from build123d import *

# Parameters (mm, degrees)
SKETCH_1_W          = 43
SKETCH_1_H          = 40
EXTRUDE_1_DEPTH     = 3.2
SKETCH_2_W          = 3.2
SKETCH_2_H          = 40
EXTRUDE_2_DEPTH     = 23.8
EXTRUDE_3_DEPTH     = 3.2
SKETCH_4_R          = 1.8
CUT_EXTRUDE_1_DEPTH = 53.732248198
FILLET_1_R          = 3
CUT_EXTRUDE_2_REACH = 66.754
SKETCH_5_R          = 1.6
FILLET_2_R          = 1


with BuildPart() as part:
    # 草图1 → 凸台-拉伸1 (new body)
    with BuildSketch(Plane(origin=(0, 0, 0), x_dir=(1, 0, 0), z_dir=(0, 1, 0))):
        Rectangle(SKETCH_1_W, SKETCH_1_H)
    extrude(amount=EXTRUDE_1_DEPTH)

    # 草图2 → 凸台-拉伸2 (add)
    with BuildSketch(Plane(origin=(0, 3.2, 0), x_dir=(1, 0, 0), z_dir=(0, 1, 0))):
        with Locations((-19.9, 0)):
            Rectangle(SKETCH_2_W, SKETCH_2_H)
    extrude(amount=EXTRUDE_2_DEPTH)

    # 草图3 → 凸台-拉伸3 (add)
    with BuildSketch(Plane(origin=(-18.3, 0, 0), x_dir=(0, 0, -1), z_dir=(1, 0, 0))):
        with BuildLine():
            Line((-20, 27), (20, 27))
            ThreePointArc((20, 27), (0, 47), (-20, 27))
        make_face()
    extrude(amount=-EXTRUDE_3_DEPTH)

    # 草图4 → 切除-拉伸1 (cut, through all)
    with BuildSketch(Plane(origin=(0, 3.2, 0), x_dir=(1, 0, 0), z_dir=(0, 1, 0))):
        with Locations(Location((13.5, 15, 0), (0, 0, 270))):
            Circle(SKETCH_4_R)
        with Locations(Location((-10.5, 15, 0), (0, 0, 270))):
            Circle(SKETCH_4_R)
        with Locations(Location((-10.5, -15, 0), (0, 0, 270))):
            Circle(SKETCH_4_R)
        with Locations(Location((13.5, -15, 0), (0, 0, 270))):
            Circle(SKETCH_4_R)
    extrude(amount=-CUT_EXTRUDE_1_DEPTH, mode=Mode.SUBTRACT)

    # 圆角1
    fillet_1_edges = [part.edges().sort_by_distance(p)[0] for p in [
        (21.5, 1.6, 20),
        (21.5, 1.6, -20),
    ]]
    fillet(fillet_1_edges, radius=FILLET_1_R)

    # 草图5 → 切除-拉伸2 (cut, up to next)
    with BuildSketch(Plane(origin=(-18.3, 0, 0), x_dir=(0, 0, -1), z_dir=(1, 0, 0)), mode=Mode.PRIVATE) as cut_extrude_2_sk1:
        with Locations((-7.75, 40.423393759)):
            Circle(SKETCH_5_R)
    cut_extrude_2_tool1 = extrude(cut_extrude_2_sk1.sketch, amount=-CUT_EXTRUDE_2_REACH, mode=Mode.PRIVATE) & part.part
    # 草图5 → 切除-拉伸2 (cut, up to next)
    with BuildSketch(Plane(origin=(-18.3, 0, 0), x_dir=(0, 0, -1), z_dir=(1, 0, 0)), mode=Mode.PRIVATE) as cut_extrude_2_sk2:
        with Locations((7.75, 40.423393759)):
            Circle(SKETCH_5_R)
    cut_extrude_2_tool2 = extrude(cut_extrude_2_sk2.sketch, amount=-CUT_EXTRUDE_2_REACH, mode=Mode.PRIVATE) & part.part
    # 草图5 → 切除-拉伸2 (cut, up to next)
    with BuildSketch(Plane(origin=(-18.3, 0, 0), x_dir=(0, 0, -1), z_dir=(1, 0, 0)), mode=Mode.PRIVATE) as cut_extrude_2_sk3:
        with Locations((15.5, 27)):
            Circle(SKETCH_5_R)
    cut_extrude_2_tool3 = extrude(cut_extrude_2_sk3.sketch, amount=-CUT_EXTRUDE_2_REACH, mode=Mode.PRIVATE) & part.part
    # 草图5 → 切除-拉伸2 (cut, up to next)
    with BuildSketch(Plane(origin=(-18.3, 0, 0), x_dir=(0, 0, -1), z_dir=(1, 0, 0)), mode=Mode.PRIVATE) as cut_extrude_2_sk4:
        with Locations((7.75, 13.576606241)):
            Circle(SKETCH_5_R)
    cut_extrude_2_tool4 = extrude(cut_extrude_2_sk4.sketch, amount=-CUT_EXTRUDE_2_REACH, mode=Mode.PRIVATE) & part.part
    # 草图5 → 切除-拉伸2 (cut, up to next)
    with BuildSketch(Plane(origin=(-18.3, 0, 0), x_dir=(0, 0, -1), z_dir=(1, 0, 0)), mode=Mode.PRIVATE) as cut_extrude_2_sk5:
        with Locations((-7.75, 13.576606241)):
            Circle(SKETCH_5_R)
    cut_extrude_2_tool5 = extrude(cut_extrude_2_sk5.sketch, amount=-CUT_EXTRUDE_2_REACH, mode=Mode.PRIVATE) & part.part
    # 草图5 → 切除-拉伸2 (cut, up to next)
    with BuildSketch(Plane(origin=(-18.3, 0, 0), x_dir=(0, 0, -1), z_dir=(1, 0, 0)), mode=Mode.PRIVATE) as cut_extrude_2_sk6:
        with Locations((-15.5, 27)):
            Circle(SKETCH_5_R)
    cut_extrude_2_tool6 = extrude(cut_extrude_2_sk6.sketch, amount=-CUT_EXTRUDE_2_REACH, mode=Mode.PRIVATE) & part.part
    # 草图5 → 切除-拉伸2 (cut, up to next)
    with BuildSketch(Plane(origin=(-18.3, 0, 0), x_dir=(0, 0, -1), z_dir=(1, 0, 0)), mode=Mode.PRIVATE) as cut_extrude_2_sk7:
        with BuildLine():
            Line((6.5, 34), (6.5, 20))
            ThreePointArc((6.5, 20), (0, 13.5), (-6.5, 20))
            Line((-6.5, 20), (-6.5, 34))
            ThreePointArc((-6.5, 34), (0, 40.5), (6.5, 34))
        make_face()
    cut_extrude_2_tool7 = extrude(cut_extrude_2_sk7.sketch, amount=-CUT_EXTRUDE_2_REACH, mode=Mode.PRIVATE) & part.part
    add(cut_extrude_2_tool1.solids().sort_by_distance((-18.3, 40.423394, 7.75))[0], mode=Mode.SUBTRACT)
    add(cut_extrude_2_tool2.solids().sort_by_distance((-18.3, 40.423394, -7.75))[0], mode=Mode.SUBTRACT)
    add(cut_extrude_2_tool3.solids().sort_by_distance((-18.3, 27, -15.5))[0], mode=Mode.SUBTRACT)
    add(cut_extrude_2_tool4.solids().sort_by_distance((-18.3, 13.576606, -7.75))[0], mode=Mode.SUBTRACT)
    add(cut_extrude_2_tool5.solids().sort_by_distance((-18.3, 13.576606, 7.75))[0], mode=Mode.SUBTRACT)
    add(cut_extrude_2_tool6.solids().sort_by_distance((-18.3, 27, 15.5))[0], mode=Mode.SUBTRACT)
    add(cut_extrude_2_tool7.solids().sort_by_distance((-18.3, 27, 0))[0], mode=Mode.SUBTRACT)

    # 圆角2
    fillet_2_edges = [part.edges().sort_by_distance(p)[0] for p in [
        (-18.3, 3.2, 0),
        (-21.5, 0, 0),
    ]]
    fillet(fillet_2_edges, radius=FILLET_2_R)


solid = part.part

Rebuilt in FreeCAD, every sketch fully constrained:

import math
import FreeCAD as App
import Part
import Sketcher
from FreeCAD import Vector
Q = App.Units.Quantity


def edges_at(feature, points):
    """Names of the edges that pass closest to the given points."""
    edges = feature.Shape.Edges
    near = lambda p: min(range(len(edges)), key=lambda i: edges[i].distToShape(Part.Vertex(*p))[0])
    return sorted({f"Edge{near(p) + 1}" for p in points})


def add_polygon(sketch, points):
    """Adds a closed chain of lines whose ends are joined by coincident constraints."""
    first, n = sketch.GeometryCount, len(points)
    for a, b in zip(points, points[1:] + points[:1]):
        sketch.addGeometry(Part.LineSegment(App.Vector(*a, 0), App.Vector(*b, 0)), False)
    for i in range(n):
        sketch.addConstraint(Sketcher.Constraint("Coincident", first + i, 2, first + (i + 1) % n, 1))

doc = App.newDocument("Part")
body = doc.addObject("PartDesign::Body", "Body")

# Sketch on XZ plane
sketch1 = body.newObject("Sketcher::SketchObject", "Sketch")
sketch1.AttachmentSupport = (doc.getObject("XZ_Plane"), [""])
sketch1.MapMode = "FlatFace"
add_polygon(sketch1, [(-21.5, -20), (-21.5, 20), (21.5, 20), (21.5, -20)])  # lines 0-3
sketch1.addConstraint(Sketcher.Constraint("Vertical", 0))
sketch1.addConstraint(Sketcher.Constraint("Horizontal", 1))
sketch1.addConstraint(Sketcher.Constraint("Vertical", 2))
sketch1.addConstraint(Sketcher.Constraint("Horizontal", 3))
sketch1.addConstraint(Sketcher.Constraint("Symmetric", 0, 2, 2, 2, -1, 1))
sketch1.addConstraint(Sketcher.Constraint("DistanceX", 1, 1, 1, 2, Q("43 mm")))
sketch1.addConstraint(Sketcher.Constraint("DistanceY", 0, 1, 0, 2, Q("40 mm")))
pad1 = body.newObject("PartDesign::Pad", "Pad")
pad1.Profile = sketch1
pad1.Length = 3.2
pad1.Reversed = True

# Sketch on XZ plane
sketch2 = body.newObject("Sketcher::SketchObject", "Sketch001")
sketch2.AttachmentSupport = (doc.getObject("XZ_Plane"), [""])
sketch2.MapMode = "FlatFace"
sketch2.AttachmentOffset = App.Placement(Vector(0, 0, -3.2), App.Rotation())
add_polygon(sketch2, [(-21.5, -20), (-21.5, 20), (-18.3, 20), (-18.3, -20)])  # lines 0-3
sketch2.addConstraint(Sketcher.Constraint("Vertical", 0))
sketch2.addConstraint(Sketcher.Constraint("Horizontal", 1))
sketch2.addConstraint(Sketcher.Constraint("Vertical", 2))
sketch2.addConstraint(Sketcher.Constraint("Horizontal", 3))
sketch2.addConstraint(Sketcher.Constraint("DistanceY", 0, 1, 0, 2, Q("40 mm")))
sketch2.addConstraint(Sketcher.Constraint("DistanceX", 1, 1, 1, 2, Q("3.2 mm")))
sketch2.addConstraint(Sketcher.Constraint("DistanceY", -1, 1, 0, 2, Q("20 mm")))
sketch2.addConstraint(Sketcher.Constraint("DistanceX", 0, 2, -1, 1, Q("21.5 mm")))
pad2 = body.newObject("PartDesign::Pad", "Pad001")
pad2.Profile = sketch2
pad2.Length = 23.8
pad2.Reversed = True

# Sketch on YZ plane
sketch3 = body.newObject("Sketcher::SketchObject", "Sketch002")
sketch3.AttachmentSupport = (doc.getObject("YZ_Plane"), [""])
sketch3.MapMode = "FlatFace"
sketch3.AttachmentOffset = App.Placement(Vector(0, 0, -18.3), App.Rotation())
sketch3.addGeometry(Part.LineSegment(Vector(27, 20, 0), Vector(27, -20, 0)), False)
sketch3.addGeometry(Part.ArcOfCircle(Part.Circle(Vector(27, 0, 0), Vector(0, 0, 1), 20), math.radians(-90), math.radians(90)), False)
sketch3.addConstraint(Sketcher.Constraint("Coincident", 0, 1, 1, 2))
sketch3.addConstraint(Sketcher.Constraint("Coincident", 1, 1, 0, 2))
sketch3.addConstraint(Sketcher.Constraint("Vertical", 0))
sketch3.addConstraint(Sketcher.Constraint("PointOnObject", 1, 3, -1))
sketch3.addConstraint(Sketcher.Constraint("Vertical", 1, 3, 0, 1))
sketch3.addConstraint(Sketcher.Constraint("Radius", 1, Q("20 mm")))
sketch3.addConstraint(Sketcher.Constraint("DistanceX", -1, 1, 1, 3, Q("27 mm")))
pad3 = body.newObject("PartDesign::Pad", "Pad002")
pad3.Profile = sketch3
pad3.Length = 3.2
pad3.Reversed = True

# Sketch on XZ plane
sketch4 = body.newObject("Sketcher::SketchObject", "Sketch003")
sketch4.AttachmentSupport = (doc.getObject("XZ_Plane"), [""])
sketch4.MapMode = "FlatFace"
sketch4.AttachmentOffset = App.Placement(Vector(0, 0, -3.2), App.Rotation())
sketch4.addGeometry(Part.Circle(Vector(13.5, -15, 0), Vector(0, 0, 1), 1.8), False)
sketch4.addGeometry(Part.Circle(Vector(-10.5, -15, 0), Vector(0, 0, 1), 1.8), False)
sketch4.addGeometry(Part.Circle(Vector(-10.5, 15, 0), Vector(0, 0, 1), 1.8), False)
sketch4.addGeometry(Part.Circle(Vector(13.5, 15, 0), Vector(0, 0, 1), 1.8), False)
sketch4.addConstraint(Sketcher.Constraint("Equal", 0, 1))
sketch4.addConstraint(Sketcher.Constraint("Equal", 1, 2))
sketch4.addConstraint(Sketcher.Constraint("Equal", 2, 3))
sketch4.addConstraint(Sketcher.Constraint("Symmetric", 1, 3, 2, 3, -1))
sketch4.addConstraint(Sketcher.Constraint("Symmetric", 0, 3, 3, 3, -1))
sketch4.addConstraint(Sketcher.Constraint("Horizontal", 0, 3, 1, 3))
sketch4.addConstraint(Sketcher.Constraint("Diameter", 0, Q("3.6 mm")))
sketch4.addConstraint(Sketcher.Constraint("DistanceY", 0, 3, -1, 1, Q("15 mm")))
sketch4.addConstraint(Sketcher.Constraint("DistanceX", 1, 3, 0, 3, Q("24 mm")))
sketch4.addConstraint(Sketcher.Constraint("DistanceX", -1, 1, 0, 3, Q("13.5 mm")))
pocket1 = body.newObject("PartDesign::Pocket", "Pocket")
pocket1.Profile = sketch4
pocket1.Type = "ThroughAll"
pocket1.Reversed = True
doc.recompute()

fillet = body.newObject("PartDesign::Fillet", "Fillet")
fillet.Base = (pocket1, edges_at(pocket1, [(21.5, 1.6, 20), (21.5, 1.6, -20)]))
fillet.Radius = 3

# Sketch on YZ plane
sketch5 = body.newObject("Sketcher::SketchObject", "Sketch004")
sketch5.AttachmentSupport = (doc.getObject("YZ_Plane"), [""])
sketch5.MapMode = "FlatFace"
sketch5.AttachmentOffset = App.Placement(Vector(0, 0, -18.3), App.Rotation())
sketch5.addGeometry(Part.Circle(Vector(40.423394, 7.75, 0), Vector(0, 0, 1), 1.6), False)
sketch5.addConstraint(Sketcher.Constraint("Diameter", 0, Q("3.2 mm")))
sketch5.addConstraint(Sketcher.Constraint("DistanceY", -1, 1, 0, 3, Q("7.75 mm")))
sketch5.addConstraint(Sketcher.Constraint("DistanceX", -1, 1, 0, 3, Q("40.423394 mm")))
pocket2 = body.newObject("PartDesign::Pocket", "Pocket001")
pocket2.Profile = sketch5
pocket2.Type = "UpToFirst"

# Sketch on YZ plane
sketch6 = body.newObject("Sketcher::SketchObject", "Sketch005")
sketch6.AttachmentSupport = (doc.getObject("YZ_Plane"), [""])
sketch6.MapMode = "FlatFace"
sketch6.AttachmentOffset = App.Placement(Vector(0, 0, -18.3), App.Rotation())
sketch6.addGeometry(Part.Circle(Vector(40.423394, -7.75, 0), Vector(0, 0, 1), 1.6), False)
sketch6.addConstraint(Sketcher.Constraint("Diameter", 0, Q("3.2 mm")))
sketch6.addConstraint(Sketcher.Constraint("DistanceY", 0, 3, -1, 1, Q("7.75 mm")))
sketch6.addConstraint(Sketcher.Constraint("DistanceX", -1, 1, 0, 3, Q("40.423394 mm")))
pocket3 = body.newObject("PartDesign::Pocket", "Pocket002")
pocket3.Profile = sketch6
pocket3.Type = "UpToFirst"

# Sketch on YZ plane
sketch7 = body.newObject("Sketcher::SketchObject", "Sketch006")
sketch7.AttachmentSupport = (doc.getObject("YZ_Plane"), [""])
sketch7.MapMode = "FlatFace"
sketch7.AttachmentOffset = App.Placement(Vector(0, 0, -18.3), App.Rotation())
sketch7.addGeometry(Part.Circle(Vector(27, -15.5, 0), Vector(0, 0, 1), 1.6), False)
sketch7.addConstraint(Sketcher.Constraint("Diameter", 0, Q("3.2 mm")))
sketch7.addConstraint(Sketcher.Constraint("DistanceX", -1, 1, 0, 3, Q("27 mm")))
sketch7.addConstraint(Sketcher.Constraint("DistanceY", 0, 3, -1, 1, Q("15.5 mm")))
pocket4 = body.newObject("PartDesign::Pocket", "Pocket003")
pocket4.Profile = sketch7
pocket4.Type = "UpToFirst"

# Sketch on YZ plane
sketch8 = body.newObject("Sketcher::SketchObject", "Sketch007")
sketch8.AttachmentSupport = (doc.getObject("YZ_Plane"), [""])
sketch8.MapMode = "FlatFace"
sketch8.AttachmentOffset = App.Placement(Vector(0, 0, -18.3), App.Rotation())
sketch8.addGeometry(Part.Circle(Vector(13.576606, -7.75, 0), Vector(0, 0, 1), 1.6), False)
sketch8.addConstraint(Sketcher.Constraint("Diameter", 0, Q("3.2 mm")))
sketch8.addConstraint(Sketcher.Constraint("DistanceY", 0, 3, -1, 1, Q("7.75 mm")))
sketch8.addConstraint(Sketcher.Constraint("DistanceX", -1, 1, 0, 3, Q("13.576606 mm")))
pocket5 = body.newObject("PartDesign::Pocket", "Pocket004")
pocket5.Profile = sketch8
pocket5.Type = "UpToFirst"

# Sketch on YZ plane
sketch9 = body.newObject("Sketcher::SketchObject", "Sketch008")
sketch9.AttachmentSupport = (doc.getObject("YZ_Plane"), [""])
sketch9.MapMode = "FlatFace"
sketch9.AttachmentOffset = App.Placement(Vector(0, 0, -18.3), App.Rotation())
sketch9.addGeometry(Part.Circle(Vector(13.576606, 7.75, 0), Vector(0, 0, 1), 1.6), False)
sketch9.addConstraint(Sketcher.Constraint("Diameter", 0, Q("3.2 mm")))
sketch9.addConstraint(Sketcher.Constraint("DistanceY", -1, 1, 0, 3, Q("7.75 mm")))
sketch9.addConstraint(Sketcher.Constraint("DistanceX", -1, 1, 0, 3, Q("13.576606 mm")))
pocket6 = body.newObject("PartDesign::Pocket", "Pocket005")
pocket6.Profile = sketch9
pocket6.Type = "UpToFirst"

# Sketch on YZ plane
sketch10 = body.newObject("Sketcher::SketchObject", "Sketch009")
sketch10.AttachmentSupport = (doc.getObject("YZ_Plane"), [""])
sketch10.MapMode = "FlatFace"
sketch10.AttachmentOffset = App.Placement(Vector(0, 0, -18.3), App.Rotation())
sketch10.addGeometry(Part.Circle(Vector(27, 15.5, 0), Vector(0, 0, 1), 1.6), False)
sketch10.addConstraint(Sketcher.Constraint("Diameter", 0, Q("3.2 mm")))
sketch10.addConstraint(Sketcher.Constraint("DistanceX", -1, 1, 0, 3, Q("27 mm")))
sketch10.addConstraint(Sketcher.Constraint("DistanceY", -1, 1, 0, 3, Q("15.5 mm")))
pocket7 = body.newObject("PartDesign::Pocket", "Pocket006")
pocket7.Profile = sketch10
pocket7.Type = "UpToFirst"

# Sketch on YZ plane
sketch11 = body.newObject("Sketcher::SketchObject", "Sketch010")
sketch11.AttachmentSupport = (doc.getObject("YZ_Plane"), [""])
sketch11.MapMode = "FlatFace"
sketch11.AttachmentOffset = App.Placement(Vector(0, 0, -18.3), App.Rotation())
sketch11.addGeometry(Part.LineSegment(Vector(20, -6.5, 0), Vector(34, -6.5, 0)), False)
sketch11.addGeometry(Part.ArcOfCircle(Part.Circle(Vector(34, 0, 0), Vector(0, 0, 1), 6.5), math.radians(-90), math.radians(90)), False)
sketch11.addGeometry(Part.LineSegment(Vector(34, 6.5, 0), Vector(20, 6.5, 0)), False)
sketch11.addGeometry(Part.ArcOfCircle(Part.Circle(Vector(20, 0, 0), Vector(0, 0, 1), 6.5), math.radians(90), math.radians(270)), False)
sketch11.addConstraint(Sketcher.Constraint("Tangent", 0, 2, 1, 1))
sketch11.addConstraint(Sketcher.Constraint("Tangent", 1, 2, 2, 1))
sketch11.addConstraint(Sketcher.Constraint("Tangent", 2, 2, 3, 1))
sketch11.addConstraint(Sketcher.Constraint("Tangent", 3, 2, 0, 1))
sketch11.addConstraint(Sketcher.Constraint("Horizontal", 0))
sketch11.addConstraint(Sketcher.Constraint("Horizontal", 2))
sketch11.addConstraint(Sketcher.Constraint("PointOnObject", 1, 3, -1))
sketch11.addConstraint(Sketcher.Constraint("Radius", 1, Q("6.5 mm")))
sketch11.addConstraint(Sketcher.Constraint("DistanceX", 0, 1, 0, 2, Q("14 mm")))
sketch11.addConstraint(Sketcher.Constraint("DistanceX", -1, 1, 1, 3, Q("34 mm")))
pocket8 = body.newObject("PartDesign::Pocket", "Pocket007")
pocket8.Profile = sketch11
pocket8.Type = "UpToFirst"
doc.recompute()

fillet2 = body.newObject("PartDesign::Fillet", "Fillet001")
fillet2.Base = (pocket8, edges_at(pocket8, [(-18.3, 3.2, 0), (-21.5, 0, 0)]))
fillet2.Radius = 1

doc.recompute()
